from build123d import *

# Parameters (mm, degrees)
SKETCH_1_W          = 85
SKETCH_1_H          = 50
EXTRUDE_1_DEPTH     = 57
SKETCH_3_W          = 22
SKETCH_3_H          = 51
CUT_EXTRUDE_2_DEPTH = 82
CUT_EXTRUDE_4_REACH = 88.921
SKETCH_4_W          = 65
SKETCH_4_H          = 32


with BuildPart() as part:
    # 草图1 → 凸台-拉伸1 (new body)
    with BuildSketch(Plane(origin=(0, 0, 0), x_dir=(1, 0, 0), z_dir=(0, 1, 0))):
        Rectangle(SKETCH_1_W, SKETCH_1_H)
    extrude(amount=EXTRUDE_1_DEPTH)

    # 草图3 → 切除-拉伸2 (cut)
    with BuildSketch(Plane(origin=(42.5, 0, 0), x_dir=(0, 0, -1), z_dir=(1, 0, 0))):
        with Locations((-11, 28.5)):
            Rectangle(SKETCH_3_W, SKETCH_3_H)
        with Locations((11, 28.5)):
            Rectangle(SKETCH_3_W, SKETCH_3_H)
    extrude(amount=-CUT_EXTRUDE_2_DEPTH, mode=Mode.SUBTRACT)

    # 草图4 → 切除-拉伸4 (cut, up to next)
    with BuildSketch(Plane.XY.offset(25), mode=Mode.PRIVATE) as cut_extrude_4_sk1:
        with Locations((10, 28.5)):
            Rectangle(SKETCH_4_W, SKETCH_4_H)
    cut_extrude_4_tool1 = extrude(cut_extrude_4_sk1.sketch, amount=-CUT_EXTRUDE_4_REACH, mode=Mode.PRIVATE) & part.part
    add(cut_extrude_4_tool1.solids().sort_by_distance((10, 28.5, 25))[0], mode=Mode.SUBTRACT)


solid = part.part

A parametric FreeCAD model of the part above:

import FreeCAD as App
import Part
import Sketcher

doc = App.newDocument("Part")
body = doc.addObject("PartDesign::Body", "Body")

# Sketch on XZ plane
sketch1 = body.newObject("Sketcher::SketchObject", "Sketch")
sketch1.AttachmentSupport = (doc.getObject("XZ_Plane"), [""])
sketch1.MapMode = "FlatFace"
sketch1.addGeometry([
    Part.LineSegment(App.Vector(-42, -25, 0), App.Vector(-42, 25, 0)),
    Part.LineSegment(App.Vector(-42, 25, 0), App.Vector(42, 25, 0)),
    Part.LineSegment(App.Vector(42, 25, 0), App.Vector(42, -25, 0)),
    Part.LineSegment(App.Vector(42, -25, 0), App.Vector(-42, -25, 0)),
], False)
sketch1.addConstraint([
    Sketcher.Constraint("Coincident", 0, 2, 1, 1),
    Sketcher.Constraint("Coincident", 1, 2, 2, 1),
    Sketcher.Constraint("Coincident", 2, 2, 3, 1),
    Sketcher.Constraint("Coincident", 3, 2, 0, 1),
    Sketcher.Constraint("Vertical", 0),
    Sketcher.Constraint("Horizontal", 1),
    Sketcher.Constraint("Vertical", 2),
    Sketcher.Constraint("Horizontal", 3),
    Sketcher.Constraint("Symmetric", 0, 2, 2, 2, -1, 1),
    Sketcher.Constraint("DistanceX", 1, 1, 1, 2, 85.0),
    Sketcher.Constraint("DistanceY", 0, 1, 0, 2, 50.0),
])
pad1 = body.newObject("PartDesign::Pad", "Pad")
pad1.Profile = sketch1
pad1.Length = 57
pad1.Reversed = True

# Sketch on YZ plane
sketch2 = body.newObject("Sketcher::SketchObject", "Sketch001")
sketch2.AttachmentSupport = (doc.getObject("YZ_Plane"), [""])
sketch2.MapMode = "FlatFace"
sketch2.AttachmentOffset = App.Placement(App.Vector(0, 0, 42.5), App.Rotation())
sketch2.addGeometry([
    Part.LineSegment(App.Vector(54, 22, 0), App.Vector(3, 22, 0)),
    Part.LineSegment(App.Vector(3, 22, 0), App.Vector(3, -22, 0)),
    Part.LineSegment(App.Vector(3, -22, 0), App.Vector(54, -22, 0)),
    Part.LineSegment(App.Vector(54, -22, 0), App.Vector(54, 22, 0)),
], False)
sketch2.addConstraint([
    Sketcher.Constraint("Coincident", 0, 2, 1, 1),
    Sketcher.Constraint("Coincident", 1, 2, 2, 1),
    Sketcher.Constraint("Coincident", 2, 2, 3, 1),
    Sketcher.Constraint("Coincident", 3, 2, 0, 1),
    Sketcher.Constraint("Horizontal", 0),
    Sketcher.Constraint("Vertical", 1),
    Sketcher.Constraint("Horizontal", 2),
    Sketcher.Constraint("Vertical", 3),
    Sketcher.Constraint("DistanceX", 0, 2, 0, 1, 51.0),
    Sketcher.Constraint("DistanceY", 1, 2, 1, 1, 44.0),
    Sketcher.Constraint("DistanceX", -1, 1, 0, 2, 3.0),
    Sketcher.Constraint("DistanceY", -1, 1, 0, 2, 22.0),
])
pocket1 = body.newObject("PartDesign::Pocket", "Pocket")
pocket1.Profile = sketch2
pocket1.Length = 82

# Sketch on XY plane
sketch3 = body.newObject("Sketcher::SketchObject", "Sketch002")
sketch3.AttachmentSupport = (doc.getObject("XY_Plane"), [""])
sketch3.MapMode = "FlatFace"
sketch3.AttachmentOffset = App.Placement(App.Vector(0, 0, 25), App.Rotation())
sketch3.addGeometry([
    Part.LineSegment(App.Vector(-22, 44, 0), App.Vector(-22, 12, 0)),
    Part.LineSegment(App.Vector(-22, 12, 0), App.Vector(42, 12, 0)),
    Part.LineSegment(App.Vector(42, 12, 0), App.Vector(42, 44, 0)),
    Part.LineSegment(App.Vector(42, 44, 0), App.Vector(-22, 44, 0)),
], False)
sketch3.addConstraint([
    Sketcher.Constraint("Coincident", 0, 2, 1, 1),
    Sketcher.Constraint("Coincident", 1, 2, 2, 1),
    Sketcher.Constraint("Coincident", 2, 2, 3, 1),
    Sketcher.Constraint("Coincident", 3, 2, 0, 1),
    Sketcher.Constraint("Vertical", 0),
    Sketcher.Constraint("Horizontal", 1),
    Sketcher.Constraint("Vertical", 2),
    Sketcher.Constraint("Horizontal", 3),
    Sketcher.Constraint("DistanceX", 1, 1, 1, 2, 65.0),
    Sketcher.Constraint("DistanceY", 0, 2, 0, 1, 32.0),
    Sketcher.Constraint("DistanceX", 0, 2, -1, 1, 22.5),
    Sketcher.Constraint("DistanceY", -1, 1, 0, 2, 12.5),
])
pocket2 = body.newObject("PartDesign::Pocket", "Pocket001")
pocket2.Profile = sketch3
pocket2.Type = "UpToFirst"

doc.recompute()
